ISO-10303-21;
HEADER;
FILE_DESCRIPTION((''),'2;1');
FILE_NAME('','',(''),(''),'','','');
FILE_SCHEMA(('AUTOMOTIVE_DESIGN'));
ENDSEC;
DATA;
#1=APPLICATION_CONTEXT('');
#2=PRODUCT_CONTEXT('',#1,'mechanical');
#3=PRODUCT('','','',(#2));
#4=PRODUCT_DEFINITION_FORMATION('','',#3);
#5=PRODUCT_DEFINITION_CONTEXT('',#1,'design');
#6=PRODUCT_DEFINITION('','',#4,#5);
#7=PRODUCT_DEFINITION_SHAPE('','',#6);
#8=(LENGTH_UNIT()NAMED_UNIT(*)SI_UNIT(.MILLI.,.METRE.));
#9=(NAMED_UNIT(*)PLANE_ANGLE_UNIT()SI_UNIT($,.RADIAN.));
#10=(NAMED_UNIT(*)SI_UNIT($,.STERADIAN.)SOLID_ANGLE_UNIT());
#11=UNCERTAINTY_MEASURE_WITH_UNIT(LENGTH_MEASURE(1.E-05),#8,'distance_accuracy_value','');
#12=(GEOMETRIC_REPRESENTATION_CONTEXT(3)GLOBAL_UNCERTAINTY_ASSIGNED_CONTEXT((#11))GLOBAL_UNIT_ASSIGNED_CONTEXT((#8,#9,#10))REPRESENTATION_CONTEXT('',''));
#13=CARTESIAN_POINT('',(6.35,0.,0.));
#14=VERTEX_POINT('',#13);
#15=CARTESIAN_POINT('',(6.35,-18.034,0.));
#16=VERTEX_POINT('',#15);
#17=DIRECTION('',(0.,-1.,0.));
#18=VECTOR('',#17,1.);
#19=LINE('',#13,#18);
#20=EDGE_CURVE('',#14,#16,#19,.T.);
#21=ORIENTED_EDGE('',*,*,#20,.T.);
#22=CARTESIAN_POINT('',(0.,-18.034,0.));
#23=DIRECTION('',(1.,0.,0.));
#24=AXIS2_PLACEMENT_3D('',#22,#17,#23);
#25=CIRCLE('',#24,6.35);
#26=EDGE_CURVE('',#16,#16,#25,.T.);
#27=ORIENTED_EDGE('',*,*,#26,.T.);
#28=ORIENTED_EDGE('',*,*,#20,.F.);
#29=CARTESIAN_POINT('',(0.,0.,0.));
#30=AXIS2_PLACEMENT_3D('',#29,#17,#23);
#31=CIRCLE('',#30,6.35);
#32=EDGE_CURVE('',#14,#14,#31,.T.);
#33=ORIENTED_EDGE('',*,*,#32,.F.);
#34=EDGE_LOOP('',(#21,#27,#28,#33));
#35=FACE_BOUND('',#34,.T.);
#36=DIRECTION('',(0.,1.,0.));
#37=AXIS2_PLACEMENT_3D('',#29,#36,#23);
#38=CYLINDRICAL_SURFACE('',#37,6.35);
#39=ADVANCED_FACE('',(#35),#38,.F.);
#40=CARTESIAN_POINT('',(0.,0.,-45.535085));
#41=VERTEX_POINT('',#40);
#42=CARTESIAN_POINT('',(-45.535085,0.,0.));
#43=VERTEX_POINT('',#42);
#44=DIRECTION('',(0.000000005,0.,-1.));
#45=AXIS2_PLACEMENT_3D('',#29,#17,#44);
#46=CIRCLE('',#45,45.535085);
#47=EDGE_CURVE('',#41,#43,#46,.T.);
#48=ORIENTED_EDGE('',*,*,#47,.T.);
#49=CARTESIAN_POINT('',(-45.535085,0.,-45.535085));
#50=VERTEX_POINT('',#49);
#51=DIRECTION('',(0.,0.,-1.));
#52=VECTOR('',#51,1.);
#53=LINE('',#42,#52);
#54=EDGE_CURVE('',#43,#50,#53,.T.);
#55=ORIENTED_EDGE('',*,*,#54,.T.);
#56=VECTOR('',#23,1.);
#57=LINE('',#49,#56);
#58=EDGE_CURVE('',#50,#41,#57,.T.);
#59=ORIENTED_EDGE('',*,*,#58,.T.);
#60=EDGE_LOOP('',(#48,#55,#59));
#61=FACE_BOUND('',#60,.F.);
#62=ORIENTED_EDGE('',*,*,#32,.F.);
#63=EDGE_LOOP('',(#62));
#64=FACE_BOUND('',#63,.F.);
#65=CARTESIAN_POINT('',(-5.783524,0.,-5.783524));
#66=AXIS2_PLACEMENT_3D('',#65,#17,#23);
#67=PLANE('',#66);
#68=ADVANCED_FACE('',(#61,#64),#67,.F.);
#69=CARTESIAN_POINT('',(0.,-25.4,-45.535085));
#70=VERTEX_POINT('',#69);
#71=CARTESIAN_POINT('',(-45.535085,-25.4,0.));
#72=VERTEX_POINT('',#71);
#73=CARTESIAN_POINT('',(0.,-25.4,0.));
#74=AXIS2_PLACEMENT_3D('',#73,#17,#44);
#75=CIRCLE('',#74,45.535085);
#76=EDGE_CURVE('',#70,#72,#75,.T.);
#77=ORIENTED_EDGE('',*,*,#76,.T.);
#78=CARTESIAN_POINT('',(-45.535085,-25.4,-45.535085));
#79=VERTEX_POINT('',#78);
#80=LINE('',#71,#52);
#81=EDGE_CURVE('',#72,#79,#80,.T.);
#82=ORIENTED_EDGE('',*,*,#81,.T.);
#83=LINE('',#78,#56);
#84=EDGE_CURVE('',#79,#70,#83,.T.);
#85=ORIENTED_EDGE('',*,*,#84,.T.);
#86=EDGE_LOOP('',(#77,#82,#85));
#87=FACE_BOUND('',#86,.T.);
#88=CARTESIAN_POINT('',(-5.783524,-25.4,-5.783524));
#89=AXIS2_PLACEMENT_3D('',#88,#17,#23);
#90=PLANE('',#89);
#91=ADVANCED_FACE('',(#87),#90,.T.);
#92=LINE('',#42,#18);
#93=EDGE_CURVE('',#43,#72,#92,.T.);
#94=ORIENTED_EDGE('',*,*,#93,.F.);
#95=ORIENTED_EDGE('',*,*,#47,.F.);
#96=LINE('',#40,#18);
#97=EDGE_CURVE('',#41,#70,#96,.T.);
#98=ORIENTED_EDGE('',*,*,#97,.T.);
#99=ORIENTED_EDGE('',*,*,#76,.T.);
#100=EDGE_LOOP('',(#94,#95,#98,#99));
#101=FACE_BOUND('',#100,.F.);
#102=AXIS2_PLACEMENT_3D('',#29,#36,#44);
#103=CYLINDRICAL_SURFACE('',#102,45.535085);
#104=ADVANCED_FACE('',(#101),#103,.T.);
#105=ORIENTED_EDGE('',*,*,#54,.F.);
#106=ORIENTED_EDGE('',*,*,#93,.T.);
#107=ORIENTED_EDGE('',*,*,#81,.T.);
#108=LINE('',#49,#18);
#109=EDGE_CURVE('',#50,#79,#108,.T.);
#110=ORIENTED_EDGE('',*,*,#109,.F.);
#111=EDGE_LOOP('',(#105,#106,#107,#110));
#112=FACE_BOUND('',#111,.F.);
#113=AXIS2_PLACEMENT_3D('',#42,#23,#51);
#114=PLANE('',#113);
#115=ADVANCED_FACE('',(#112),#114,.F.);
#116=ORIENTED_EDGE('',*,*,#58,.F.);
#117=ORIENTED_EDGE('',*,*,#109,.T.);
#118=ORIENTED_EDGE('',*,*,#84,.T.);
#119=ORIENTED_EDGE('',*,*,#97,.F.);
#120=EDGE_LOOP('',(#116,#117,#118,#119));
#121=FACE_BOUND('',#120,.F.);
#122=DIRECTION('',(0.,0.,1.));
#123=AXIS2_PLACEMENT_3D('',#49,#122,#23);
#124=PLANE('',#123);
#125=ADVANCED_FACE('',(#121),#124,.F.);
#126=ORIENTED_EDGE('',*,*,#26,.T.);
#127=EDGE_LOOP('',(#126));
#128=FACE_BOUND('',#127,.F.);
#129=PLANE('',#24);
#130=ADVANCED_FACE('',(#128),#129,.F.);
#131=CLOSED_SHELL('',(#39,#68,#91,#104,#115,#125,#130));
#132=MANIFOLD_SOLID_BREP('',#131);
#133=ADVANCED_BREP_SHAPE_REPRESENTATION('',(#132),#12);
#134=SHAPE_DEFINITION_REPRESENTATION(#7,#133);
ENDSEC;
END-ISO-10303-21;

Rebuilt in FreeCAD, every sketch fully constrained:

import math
import FreeCAD as App
import Part
import Sketcher
Q = App.Units.Quantity

doc = App.newDocument("Part")
body = doc.addObject("PartDesign::Body", "Body")

# Sketch on XZ plane
sketch1 = body.newObject("Sketcher::SketchObject", "Sketch")
sketch1.AttachmentSupport = (doc.getObject("XZ_Plane"), [""])
sketch1.MapMode = "FlatFace"
sketch1.addGeometry([
    Part.LineSegment(App.Vector(-46, -46, 0), App.Vector(0, -46, 0)),
    Part.ArcOfCircle(Part.Circle(App.Vector(0, 0, 0), App.Vector(0, 0, 1), 46), math.radians(-90), math.radians(180)),
    Part.LineSegment(App.Vector(-46, 0, 0), App.Vector(-46, -46, 0)),
], False)
sketch1.addConstraint([
    Sketcher.Constraint("Tangent", 0, 2, 1, 1),
    Sketcher.Constraint("Tangent", 1, 2, 2, 1),
    Sketcher.Constraint("Coincident", 2, 2, 0, 1),
    Sketcher.Constraint("Horizontal", 0),
    Sketcher.Constraint("Vertical", 2),
    Sketcher.Constraint("Coincident", 1, 3, -1, 1),
    Sketcher.Constraint("Radius", 1, 45.535085),
])
pad1 = body.newObject("PartDesign::Pad", "Pad")
pad1.Profile = sketch1
pad1.Length = Q("1 in")

# Sketch on XZ plane
sketch2 = body.newObject("Sketcher::SketchObject", "Sketch001")
sketch2.AttachmentSupport = (doc.getObject("XZ_Plane"), [""])
sketch2.MapMode = "FlatFace"
sketch2.addGeometry(Part.Circle(App.Vector(0, 0, 0), App.Vector(0, 0, 1), 6), False)
sketch2.addConstraint([
    Sketcher.Constraint("Coincident", 0, 3, -1, 1),
    Sketcher.Constraint("Diameter", 0, Q("0.5 in")),
])
pocket1 = body.newObject("PartDesign::Pocket", "Pocket")
pocket1.Profile = sketch2
pocket1.Length = Q("0.71 in")
pocket1.Reversed = True

doc.recompute()
